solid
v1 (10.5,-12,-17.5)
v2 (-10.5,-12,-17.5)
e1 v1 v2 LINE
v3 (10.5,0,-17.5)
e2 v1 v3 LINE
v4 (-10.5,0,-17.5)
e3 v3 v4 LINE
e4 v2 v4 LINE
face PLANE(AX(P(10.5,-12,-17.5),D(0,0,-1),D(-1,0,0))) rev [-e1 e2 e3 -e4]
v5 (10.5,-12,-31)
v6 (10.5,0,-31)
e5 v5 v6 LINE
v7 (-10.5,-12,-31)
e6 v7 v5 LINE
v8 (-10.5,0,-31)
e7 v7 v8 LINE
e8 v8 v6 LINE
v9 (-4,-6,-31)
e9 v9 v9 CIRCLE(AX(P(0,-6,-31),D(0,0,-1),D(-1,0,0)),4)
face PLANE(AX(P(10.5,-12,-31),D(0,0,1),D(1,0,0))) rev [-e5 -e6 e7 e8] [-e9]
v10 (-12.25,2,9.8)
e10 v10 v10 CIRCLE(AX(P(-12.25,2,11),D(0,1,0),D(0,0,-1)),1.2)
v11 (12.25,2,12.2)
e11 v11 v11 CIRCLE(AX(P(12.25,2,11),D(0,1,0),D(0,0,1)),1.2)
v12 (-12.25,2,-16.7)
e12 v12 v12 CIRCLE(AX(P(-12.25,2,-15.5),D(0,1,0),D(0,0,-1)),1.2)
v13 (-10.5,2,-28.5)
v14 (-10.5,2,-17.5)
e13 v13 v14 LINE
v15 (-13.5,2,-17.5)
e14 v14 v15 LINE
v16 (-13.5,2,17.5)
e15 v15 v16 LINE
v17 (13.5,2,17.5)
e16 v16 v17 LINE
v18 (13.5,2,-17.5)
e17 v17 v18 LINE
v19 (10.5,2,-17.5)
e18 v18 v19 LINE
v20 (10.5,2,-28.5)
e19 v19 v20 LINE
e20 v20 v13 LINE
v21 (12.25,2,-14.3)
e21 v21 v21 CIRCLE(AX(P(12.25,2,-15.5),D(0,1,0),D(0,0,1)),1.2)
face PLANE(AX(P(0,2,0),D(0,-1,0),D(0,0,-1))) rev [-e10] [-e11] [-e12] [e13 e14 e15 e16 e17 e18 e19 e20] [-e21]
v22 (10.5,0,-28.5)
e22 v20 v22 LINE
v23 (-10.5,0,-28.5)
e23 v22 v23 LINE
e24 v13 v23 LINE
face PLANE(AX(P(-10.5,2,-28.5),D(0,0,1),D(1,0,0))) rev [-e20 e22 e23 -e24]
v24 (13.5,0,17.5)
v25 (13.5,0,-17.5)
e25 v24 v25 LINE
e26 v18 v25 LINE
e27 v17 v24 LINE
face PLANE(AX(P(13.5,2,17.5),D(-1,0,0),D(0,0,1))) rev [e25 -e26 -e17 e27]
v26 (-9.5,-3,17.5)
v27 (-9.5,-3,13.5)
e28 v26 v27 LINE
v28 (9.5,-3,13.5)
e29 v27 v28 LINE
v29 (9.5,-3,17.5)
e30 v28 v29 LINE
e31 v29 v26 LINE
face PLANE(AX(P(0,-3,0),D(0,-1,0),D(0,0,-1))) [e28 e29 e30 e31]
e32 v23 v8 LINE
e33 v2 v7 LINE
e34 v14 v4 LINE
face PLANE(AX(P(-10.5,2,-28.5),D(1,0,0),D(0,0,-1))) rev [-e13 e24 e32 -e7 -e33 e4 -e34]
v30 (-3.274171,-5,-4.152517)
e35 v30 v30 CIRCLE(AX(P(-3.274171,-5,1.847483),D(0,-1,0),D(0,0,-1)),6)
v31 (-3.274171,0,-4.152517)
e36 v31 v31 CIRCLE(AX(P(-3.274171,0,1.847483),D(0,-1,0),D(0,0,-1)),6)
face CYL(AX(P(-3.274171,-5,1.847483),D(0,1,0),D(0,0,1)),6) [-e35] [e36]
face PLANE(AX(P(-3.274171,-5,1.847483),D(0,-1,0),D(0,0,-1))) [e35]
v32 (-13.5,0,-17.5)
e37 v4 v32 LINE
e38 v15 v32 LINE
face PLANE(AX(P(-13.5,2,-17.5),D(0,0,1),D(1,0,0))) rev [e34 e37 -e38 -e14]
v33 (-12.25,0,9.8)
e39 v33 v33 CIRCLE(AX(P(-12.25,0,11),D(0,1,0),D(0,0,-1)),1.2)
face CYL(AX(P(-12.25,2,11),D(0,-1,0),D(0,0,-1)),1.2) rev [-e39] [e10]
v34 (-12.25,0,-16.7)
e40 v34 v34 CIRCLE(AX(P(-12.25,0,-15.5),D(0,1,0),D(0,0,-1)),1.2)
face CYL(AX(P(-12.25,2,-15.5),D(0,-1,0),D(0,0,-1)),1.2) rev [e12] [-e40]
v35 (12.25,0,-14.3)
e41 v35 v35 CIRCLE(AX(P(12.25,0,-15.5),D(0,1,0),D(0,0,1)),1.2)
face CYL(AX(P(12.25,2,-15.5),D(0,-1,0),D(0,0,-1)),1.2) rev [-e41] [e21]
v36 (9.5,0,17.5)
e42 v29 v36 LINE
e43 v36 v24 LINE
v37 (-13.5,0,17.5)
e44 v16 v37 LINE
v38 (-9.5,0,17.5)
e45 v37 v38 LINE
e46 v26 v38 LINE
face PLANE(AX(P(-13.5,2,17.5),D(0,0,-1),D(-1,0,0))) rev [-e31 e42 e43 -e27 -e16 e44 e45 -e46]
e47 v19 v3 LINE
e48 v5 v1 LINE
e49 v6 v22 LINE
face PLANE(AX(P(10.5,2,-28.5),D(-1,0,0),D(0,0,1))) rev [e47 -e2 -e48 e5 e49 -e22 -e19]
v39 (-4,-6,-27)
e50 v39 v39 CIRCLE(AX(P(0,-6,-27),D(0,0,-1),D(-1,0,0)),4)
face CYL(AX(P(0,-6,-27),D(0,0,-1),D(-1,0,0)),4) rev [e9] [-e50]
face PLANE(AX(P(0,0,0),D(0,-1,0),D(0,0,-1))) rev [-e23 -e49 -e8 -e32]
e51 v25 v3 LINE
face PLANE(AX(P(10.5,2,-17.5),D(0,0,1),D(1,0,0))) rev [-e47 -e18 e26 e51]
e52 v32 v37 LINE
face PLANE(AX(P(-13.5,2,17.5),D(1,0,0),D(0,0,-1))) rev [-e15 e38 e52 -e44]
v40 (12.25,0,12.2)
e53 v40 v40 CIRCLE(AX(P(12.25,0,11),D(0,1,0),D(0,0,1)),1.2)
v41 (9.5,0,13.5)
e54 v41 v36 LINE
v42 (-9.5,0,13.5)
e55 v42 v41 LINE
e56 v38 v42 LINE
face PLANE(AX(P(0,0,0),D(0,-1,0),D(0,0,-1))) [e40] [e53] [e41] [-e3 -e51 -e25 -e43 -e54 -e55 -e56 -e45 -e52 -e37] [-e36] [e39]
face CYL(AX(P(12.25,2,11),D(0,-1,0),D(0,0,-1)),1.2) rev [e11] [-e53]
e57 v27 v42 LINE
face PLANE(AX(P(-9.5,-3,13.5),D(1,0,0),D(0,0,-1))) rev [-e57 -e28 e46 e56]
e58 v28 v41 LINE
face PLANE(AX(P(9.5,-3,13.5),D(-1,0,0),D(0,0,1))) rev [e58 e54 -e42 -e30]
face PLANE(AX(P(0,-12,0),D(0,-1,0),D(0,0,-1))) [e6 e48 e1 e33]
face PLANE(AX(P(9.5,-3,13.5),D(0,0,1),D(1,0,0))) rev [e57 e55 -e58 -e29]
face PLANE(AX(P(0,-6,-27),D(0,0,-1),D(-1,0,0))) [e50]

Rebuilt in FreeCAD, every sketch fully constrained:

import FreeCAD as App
import Part
import Sketcher

V = App.Vector

doc = App.newDocument("Part")
body = doc.addObject("PartDesign::Body", "Body")

sketch1 = body.newObject("Sketcher::SketchObject", "Sketch")
sketch1.AttachmentSupport = (doc.getObject("XZ_Plane"), [""])
sketch1.MapMode = "FlatFace"
sketch1.addGeometry(Part.LineSegment(V(13.5, -17.5, 0), V(10.5, -17.5, 0)), False)
sketch1.addGeometry(Part.LineSegment(V(10.5, -17.5, 0), V(10.5, -28.5, 0)), False)
sketch1.addGeometry(Part.LineSegment(V(10.5, -28.5, 0), V(-10.5, -28.5, 0)), False)
sketch1.addGeometry(Part.LineSegment(V(-10.5, -28.5, 0), V(-10.5, -17.5, 0)), False)
sketch1.addGeometry(Part.LineSegment(V(-10.5, -17.5, 0), V(-13.5, -17.5, 0)), False)
sketch1.addGeometry(Part.LineSegment(V(-13.5, -17.5, 0), V(-13.5, 17.5, 0)), False)
sketch1.addGeometry(Part.LineSegment(V(-13.5, 17.5, 0), V(13.5, 17.5, 0)), False)
sketch1.addGeometry(Part.LineSegment(V(13.5, 17.5, 0), V(13.5, -17.5, 0)), False)
sketch1.addGeometry(Part.Circle(V(12.2, 11, 0), V(0, 0, 1), 1.2), False)
sketch1.addGeometry(Part.Circle(V(-12.2, 11, 0), V(0, 0, 1), 1.2), False)
sketch1.addGeometry(Part.Circle(V(12.2, -15.5, 0), V(0, 0, 1), 1.2), False)
sketch1.addGeometry(Part.Circle(V(-12.2, -15.5, 0), V(0, 0, 1), 1.2), False)
sketch1.addConstraint(Sketcher.Constraint("Coincident", 0, 2, 1, 1))
sketch1.addConstraint(Sketcher.Constraint("Coincident", 1, 2, 2, 1))
sketch1.addConstraint(Sketcher.Constraint("Coincident", 2, 2, 3, 1))
sketch1.addConstraint(Sketcher.Constraint("Coincident", 3, 2, 4, 1))
sketch1.addConstraint(Sketcher.Constraint("Coincident", 4, 2, 5, 1))
sketch1.addConstraint(Sketcher.Constraint("Coincident", 5, 2, 6, 1))
sketch1.addConstraint(Sketcher.Constraint("Coincident", 6, 2, 7, 1))
sketch1.addConstraint(Sketcher.Constraint("Coincident", 7, 2, 0, 1))
sketch1.addConstraint(Sketcher.Constraint("Horizontal", 0))
sketch1.addConstraint(Sketcher.Constraint("Vertical", 1))
sketch1.addConstraint(Sketcher.Constraint("Horizontal", 2))
sketch1.addConstraint(Sketcher.Constraint("Vertical", 3))
sketch1.addConstraint(Sketcher.Constraint("Horizontal", 4))
sketch1.addConstraint(Sketcher.Constraint("Vertical", 5))
sketch1.addConstraint(Sketcher.Constraint("Horizontal", 6))
sketch1.addConstraint(Sketcher.Constraint("Vertical", 7))
sketch1.addConstraint(Sketcher.Constraint("Equal", 8, 9))
sketch1.addConstraint(Sketcher.Constraint("Equal", 9, 10))
sketch1.addConstraint(Sketcher.Constraint("Equal", 10, 11))
sketch1.addConstraint(Sketcher.Constraint("Symmetric", 4, 2, 6, 2, -1, 1))
sketch1.addConstraint(Sketcher.Constraint("Symmetric", 8, 3, 9, 3, -2))
sketch1.addConstraint(Sketcher.Constraint("Symmetric", 10, 3, 11, 3, -2))
sketch1.addConstraint(Sketcher.Constraint("Symmetric", 0, 2, 3, 2, -2))
sketch1.addConstraint(Sketcher.Constraint("Vertical", 8, 3, 10, 3))
sketch1.addConstraint(Sketcher.Constraint("Diameter", 8, 2.4))
sketch1.addConstraint(Sketcher.Constraint("DistanceX", 0, 2, 0, 1, 3.0))
sketch1.addConstraint(Sketcher.Constraint("DistanceX", 2, 2, 2, 1, 21.0))
sketch1.addConstraint(Sketcher.Constraint("DistanceY", 1, 2, 1, 1, 11.0))
sketch1.addConstraint(Sketcher.Constraint("DistanceY", 5, 1, 5, 2, 35.0))
sketch1.addConstraint(Sketcher.Constraint("DistanceY", -1, 1, 8, 3, 11.0))
sketch1.addConstraint(Sketcher.Constraint("DistanceY", 0, 2, 10, 3, 2.0))
sketch1.addConstraint(Sketcher.Constraint("DistanceX", 9, 3, 8, 3, 24.5))
pad1 = body.newObject("PartDesign::Pad", "Pad")
pad1.Profile = sketch1
pad1.Length = 2
pad1.Reversed = True

sketch2 = body.newObject("Sketcher::SketchObject", "Sketch001")
sketch2.AttachmentSupport = (doc.getObject("XZ_Plane"), [""])
sketch2.MapMode = "FlatFace"
sketch2.addGeometry(Part.LineSegment(V(-10, -18, 0), V(-10, -31, 0)), False)
sketch2.addGeometry(Part.LineSegment(V(-10, -31, 0), V(10, -31, 0)), False)
sketch2.addGeometry(Part.LineSegment(V(10, -31, 0), V(10, -18, 0)), False)
sketch2.addGeometry(Part.LineSegment(V(10, -18, 0), V(-10, -18, 0)), False)
sketch2.addConstraint(Sketcher.Constraint("Coincident", 0, 2, 1, 1))
sketch2.addConstraint(Sketcher.Constraint("Coincident", 1, 2, 2, 1))
sketch2.addConstraint(Sketcher.Constraint("Coincident", 2, 2, 3, 1))
sketch2.addConstraint(Sketcher.Constraint("Coincident", 3, 2, 0, 1))
sketch2.addConstraint(Sketcher.Constraint("Vertical", 0))
sketch2.addConstraint(Sketcher.Constraint("Horizontal", 1))
sketch2.addConstraint(Sketcher.Constraint("Vertical", 2))
sketch2.addConstraint(Sketcher.Constraint("Horizontal", 3))
sketch2.addConstraint(Sketcher.Constraint("DistanceX", 1, 1, 1, 2, 21.0))
sketch2.addConstraint(Sketcher.Constraint("DistanceY", 0, 2, 0, 1, 13.5))
sketch2.addConstraint(Sketcher.Constraint("DistanceY", 0, 2, -1, 1, 31.0))
sketch2.addConstraint(Sketcher.Constraint("DistanceX", 0, 2, -1, 1, 10.5))
pad2 = body.newObject("PartDesign::Pad", "Pad001")
pad2.Profile = sketch2
pad2.Length = 12

sketch3 = body.newObject("Sketcher::SketchObject", "Sketch002")
sketch3.AttachmentSupport = (doc.getObject("XY_Plane"), [""])
sketch3.MapMode = "FlatFace"
sketch3.AttachmentOffset = App.Placement(V(0, 0, -31), App.Rotation())
sketch3.addGeometry(Part.Circle(V(0, -6, 0), V(0, 0, 1), 4), False)
sketch3.addConstraint(Sketcher.Constraint("PointOnObject", 0, 3, -2))
sketch3.addConstraint(Sketcher.Constraint("Diameter", 0, 8.0))
sketch3.addConstraint(Sketcher.Constraint("DistanceY", 0, 3, -1, 1, 6.0))
pocket1 = body.newObject("PartDesign::Pocket", "Pocket")
pocket1.Profile = sketch3
pocket1.Length = 4
pocket1.Reversed = True

sketch4 = body.newObject("Sketcher::SketchObject", "Sketch003")
sketch4.AttachmentSupport = (doc.getObject("XZ_Plane"), [""])
sketch4.MapMode = "FlatFace"
sketch4.addGeometry(Part.LineSegment(V(-9.5, 17.5, 0), V(-9.5, 13.5, 0)), False)
sketch4.addGeometry(Part.LineSegment(V(-9.5, 13.5, 0), V(9.5, 13.5, 0)), False)
sketch4.addGeometry(Part.LineSegment(V(9.5, 13.5, 0), V(9.5, 17.5, 0)), False)
sketch4.addGeometry(Part.LineSegment(V(9.5, 17.5, 0), V(-9.5, 17.5, 0)), False)
sketch4.addConstraint(Sketcher.Constraint("Coincident", 0, 2, 1, 1))
sketch4.addConstraint(Sketcher.Constraint("Coincident", 1, 2, 2, 1))
sketch4.addConstraint(Sketcher.Constraint("Coincident", 2, 2, 3, 1))
sketch4.addConstraint(Sketcher.Constraint("Coincident", 3, 2, 0, 1))
sketch4.addConstraint(Sketcher.Constraint("Vertical", 0))
sketch4.addConstraint(Sketcher.Constraint("Horizontal", 1))
sketch4.addConstraint(Sketcher.Constraint("Vertical", 2))
sketch4.addConstraint(Sketcher.Constraint("Horizontal", 3))
sketch4.addConstraint(Sketcher.Constraint("DistanceX", 1, 1, 1, 2, 19.0))
sketch4.addConstraint(Sketcher.Constraint("DistanceY", 0, 2, 0, 1, 4.0))
sketch4.addConstraint(Sketcher.Constraint("DistanceX", 0, 2, -1, 1, 9.5))
sketch4.addConstraint(Sketcher.Constraint("DistanceY", -1, 1, 0, 2, 13.5))
pad3 = body.newObject("PartDesign::Pad", "Pad002")
pad3.Profile = sketch4
pad3.Length = 3

sketch5 = body.newObject("Sketcher::SketchObject", "Sketch004")
sketch5.AttachmentSupport = (doc.getObject("XZ_Plane"), [""])
sketch5.MapMode = "FlatFace"
sketch5.addGeometry(Part.Circle(V(-3, 2, 0), V(0, 0, 1), 6), False)
sketch5.addConstraint(Sketcher.Constraint("Diameter", 0, 12.0))
sketch5.addConstraint(Sketcher.Constraint("DistanceX", 0, 3, -1, 1, 3.274171))
sketch5.addConstraint(Sketcher.Constraint("DistanceY", -1, 1, 0, 3, 1.847483))
pad4 = body.newObject("PartDesign::Pad", "Pad003")
pad4.Profile = sketch5
pad4.Length = 5

doc.recompute()
